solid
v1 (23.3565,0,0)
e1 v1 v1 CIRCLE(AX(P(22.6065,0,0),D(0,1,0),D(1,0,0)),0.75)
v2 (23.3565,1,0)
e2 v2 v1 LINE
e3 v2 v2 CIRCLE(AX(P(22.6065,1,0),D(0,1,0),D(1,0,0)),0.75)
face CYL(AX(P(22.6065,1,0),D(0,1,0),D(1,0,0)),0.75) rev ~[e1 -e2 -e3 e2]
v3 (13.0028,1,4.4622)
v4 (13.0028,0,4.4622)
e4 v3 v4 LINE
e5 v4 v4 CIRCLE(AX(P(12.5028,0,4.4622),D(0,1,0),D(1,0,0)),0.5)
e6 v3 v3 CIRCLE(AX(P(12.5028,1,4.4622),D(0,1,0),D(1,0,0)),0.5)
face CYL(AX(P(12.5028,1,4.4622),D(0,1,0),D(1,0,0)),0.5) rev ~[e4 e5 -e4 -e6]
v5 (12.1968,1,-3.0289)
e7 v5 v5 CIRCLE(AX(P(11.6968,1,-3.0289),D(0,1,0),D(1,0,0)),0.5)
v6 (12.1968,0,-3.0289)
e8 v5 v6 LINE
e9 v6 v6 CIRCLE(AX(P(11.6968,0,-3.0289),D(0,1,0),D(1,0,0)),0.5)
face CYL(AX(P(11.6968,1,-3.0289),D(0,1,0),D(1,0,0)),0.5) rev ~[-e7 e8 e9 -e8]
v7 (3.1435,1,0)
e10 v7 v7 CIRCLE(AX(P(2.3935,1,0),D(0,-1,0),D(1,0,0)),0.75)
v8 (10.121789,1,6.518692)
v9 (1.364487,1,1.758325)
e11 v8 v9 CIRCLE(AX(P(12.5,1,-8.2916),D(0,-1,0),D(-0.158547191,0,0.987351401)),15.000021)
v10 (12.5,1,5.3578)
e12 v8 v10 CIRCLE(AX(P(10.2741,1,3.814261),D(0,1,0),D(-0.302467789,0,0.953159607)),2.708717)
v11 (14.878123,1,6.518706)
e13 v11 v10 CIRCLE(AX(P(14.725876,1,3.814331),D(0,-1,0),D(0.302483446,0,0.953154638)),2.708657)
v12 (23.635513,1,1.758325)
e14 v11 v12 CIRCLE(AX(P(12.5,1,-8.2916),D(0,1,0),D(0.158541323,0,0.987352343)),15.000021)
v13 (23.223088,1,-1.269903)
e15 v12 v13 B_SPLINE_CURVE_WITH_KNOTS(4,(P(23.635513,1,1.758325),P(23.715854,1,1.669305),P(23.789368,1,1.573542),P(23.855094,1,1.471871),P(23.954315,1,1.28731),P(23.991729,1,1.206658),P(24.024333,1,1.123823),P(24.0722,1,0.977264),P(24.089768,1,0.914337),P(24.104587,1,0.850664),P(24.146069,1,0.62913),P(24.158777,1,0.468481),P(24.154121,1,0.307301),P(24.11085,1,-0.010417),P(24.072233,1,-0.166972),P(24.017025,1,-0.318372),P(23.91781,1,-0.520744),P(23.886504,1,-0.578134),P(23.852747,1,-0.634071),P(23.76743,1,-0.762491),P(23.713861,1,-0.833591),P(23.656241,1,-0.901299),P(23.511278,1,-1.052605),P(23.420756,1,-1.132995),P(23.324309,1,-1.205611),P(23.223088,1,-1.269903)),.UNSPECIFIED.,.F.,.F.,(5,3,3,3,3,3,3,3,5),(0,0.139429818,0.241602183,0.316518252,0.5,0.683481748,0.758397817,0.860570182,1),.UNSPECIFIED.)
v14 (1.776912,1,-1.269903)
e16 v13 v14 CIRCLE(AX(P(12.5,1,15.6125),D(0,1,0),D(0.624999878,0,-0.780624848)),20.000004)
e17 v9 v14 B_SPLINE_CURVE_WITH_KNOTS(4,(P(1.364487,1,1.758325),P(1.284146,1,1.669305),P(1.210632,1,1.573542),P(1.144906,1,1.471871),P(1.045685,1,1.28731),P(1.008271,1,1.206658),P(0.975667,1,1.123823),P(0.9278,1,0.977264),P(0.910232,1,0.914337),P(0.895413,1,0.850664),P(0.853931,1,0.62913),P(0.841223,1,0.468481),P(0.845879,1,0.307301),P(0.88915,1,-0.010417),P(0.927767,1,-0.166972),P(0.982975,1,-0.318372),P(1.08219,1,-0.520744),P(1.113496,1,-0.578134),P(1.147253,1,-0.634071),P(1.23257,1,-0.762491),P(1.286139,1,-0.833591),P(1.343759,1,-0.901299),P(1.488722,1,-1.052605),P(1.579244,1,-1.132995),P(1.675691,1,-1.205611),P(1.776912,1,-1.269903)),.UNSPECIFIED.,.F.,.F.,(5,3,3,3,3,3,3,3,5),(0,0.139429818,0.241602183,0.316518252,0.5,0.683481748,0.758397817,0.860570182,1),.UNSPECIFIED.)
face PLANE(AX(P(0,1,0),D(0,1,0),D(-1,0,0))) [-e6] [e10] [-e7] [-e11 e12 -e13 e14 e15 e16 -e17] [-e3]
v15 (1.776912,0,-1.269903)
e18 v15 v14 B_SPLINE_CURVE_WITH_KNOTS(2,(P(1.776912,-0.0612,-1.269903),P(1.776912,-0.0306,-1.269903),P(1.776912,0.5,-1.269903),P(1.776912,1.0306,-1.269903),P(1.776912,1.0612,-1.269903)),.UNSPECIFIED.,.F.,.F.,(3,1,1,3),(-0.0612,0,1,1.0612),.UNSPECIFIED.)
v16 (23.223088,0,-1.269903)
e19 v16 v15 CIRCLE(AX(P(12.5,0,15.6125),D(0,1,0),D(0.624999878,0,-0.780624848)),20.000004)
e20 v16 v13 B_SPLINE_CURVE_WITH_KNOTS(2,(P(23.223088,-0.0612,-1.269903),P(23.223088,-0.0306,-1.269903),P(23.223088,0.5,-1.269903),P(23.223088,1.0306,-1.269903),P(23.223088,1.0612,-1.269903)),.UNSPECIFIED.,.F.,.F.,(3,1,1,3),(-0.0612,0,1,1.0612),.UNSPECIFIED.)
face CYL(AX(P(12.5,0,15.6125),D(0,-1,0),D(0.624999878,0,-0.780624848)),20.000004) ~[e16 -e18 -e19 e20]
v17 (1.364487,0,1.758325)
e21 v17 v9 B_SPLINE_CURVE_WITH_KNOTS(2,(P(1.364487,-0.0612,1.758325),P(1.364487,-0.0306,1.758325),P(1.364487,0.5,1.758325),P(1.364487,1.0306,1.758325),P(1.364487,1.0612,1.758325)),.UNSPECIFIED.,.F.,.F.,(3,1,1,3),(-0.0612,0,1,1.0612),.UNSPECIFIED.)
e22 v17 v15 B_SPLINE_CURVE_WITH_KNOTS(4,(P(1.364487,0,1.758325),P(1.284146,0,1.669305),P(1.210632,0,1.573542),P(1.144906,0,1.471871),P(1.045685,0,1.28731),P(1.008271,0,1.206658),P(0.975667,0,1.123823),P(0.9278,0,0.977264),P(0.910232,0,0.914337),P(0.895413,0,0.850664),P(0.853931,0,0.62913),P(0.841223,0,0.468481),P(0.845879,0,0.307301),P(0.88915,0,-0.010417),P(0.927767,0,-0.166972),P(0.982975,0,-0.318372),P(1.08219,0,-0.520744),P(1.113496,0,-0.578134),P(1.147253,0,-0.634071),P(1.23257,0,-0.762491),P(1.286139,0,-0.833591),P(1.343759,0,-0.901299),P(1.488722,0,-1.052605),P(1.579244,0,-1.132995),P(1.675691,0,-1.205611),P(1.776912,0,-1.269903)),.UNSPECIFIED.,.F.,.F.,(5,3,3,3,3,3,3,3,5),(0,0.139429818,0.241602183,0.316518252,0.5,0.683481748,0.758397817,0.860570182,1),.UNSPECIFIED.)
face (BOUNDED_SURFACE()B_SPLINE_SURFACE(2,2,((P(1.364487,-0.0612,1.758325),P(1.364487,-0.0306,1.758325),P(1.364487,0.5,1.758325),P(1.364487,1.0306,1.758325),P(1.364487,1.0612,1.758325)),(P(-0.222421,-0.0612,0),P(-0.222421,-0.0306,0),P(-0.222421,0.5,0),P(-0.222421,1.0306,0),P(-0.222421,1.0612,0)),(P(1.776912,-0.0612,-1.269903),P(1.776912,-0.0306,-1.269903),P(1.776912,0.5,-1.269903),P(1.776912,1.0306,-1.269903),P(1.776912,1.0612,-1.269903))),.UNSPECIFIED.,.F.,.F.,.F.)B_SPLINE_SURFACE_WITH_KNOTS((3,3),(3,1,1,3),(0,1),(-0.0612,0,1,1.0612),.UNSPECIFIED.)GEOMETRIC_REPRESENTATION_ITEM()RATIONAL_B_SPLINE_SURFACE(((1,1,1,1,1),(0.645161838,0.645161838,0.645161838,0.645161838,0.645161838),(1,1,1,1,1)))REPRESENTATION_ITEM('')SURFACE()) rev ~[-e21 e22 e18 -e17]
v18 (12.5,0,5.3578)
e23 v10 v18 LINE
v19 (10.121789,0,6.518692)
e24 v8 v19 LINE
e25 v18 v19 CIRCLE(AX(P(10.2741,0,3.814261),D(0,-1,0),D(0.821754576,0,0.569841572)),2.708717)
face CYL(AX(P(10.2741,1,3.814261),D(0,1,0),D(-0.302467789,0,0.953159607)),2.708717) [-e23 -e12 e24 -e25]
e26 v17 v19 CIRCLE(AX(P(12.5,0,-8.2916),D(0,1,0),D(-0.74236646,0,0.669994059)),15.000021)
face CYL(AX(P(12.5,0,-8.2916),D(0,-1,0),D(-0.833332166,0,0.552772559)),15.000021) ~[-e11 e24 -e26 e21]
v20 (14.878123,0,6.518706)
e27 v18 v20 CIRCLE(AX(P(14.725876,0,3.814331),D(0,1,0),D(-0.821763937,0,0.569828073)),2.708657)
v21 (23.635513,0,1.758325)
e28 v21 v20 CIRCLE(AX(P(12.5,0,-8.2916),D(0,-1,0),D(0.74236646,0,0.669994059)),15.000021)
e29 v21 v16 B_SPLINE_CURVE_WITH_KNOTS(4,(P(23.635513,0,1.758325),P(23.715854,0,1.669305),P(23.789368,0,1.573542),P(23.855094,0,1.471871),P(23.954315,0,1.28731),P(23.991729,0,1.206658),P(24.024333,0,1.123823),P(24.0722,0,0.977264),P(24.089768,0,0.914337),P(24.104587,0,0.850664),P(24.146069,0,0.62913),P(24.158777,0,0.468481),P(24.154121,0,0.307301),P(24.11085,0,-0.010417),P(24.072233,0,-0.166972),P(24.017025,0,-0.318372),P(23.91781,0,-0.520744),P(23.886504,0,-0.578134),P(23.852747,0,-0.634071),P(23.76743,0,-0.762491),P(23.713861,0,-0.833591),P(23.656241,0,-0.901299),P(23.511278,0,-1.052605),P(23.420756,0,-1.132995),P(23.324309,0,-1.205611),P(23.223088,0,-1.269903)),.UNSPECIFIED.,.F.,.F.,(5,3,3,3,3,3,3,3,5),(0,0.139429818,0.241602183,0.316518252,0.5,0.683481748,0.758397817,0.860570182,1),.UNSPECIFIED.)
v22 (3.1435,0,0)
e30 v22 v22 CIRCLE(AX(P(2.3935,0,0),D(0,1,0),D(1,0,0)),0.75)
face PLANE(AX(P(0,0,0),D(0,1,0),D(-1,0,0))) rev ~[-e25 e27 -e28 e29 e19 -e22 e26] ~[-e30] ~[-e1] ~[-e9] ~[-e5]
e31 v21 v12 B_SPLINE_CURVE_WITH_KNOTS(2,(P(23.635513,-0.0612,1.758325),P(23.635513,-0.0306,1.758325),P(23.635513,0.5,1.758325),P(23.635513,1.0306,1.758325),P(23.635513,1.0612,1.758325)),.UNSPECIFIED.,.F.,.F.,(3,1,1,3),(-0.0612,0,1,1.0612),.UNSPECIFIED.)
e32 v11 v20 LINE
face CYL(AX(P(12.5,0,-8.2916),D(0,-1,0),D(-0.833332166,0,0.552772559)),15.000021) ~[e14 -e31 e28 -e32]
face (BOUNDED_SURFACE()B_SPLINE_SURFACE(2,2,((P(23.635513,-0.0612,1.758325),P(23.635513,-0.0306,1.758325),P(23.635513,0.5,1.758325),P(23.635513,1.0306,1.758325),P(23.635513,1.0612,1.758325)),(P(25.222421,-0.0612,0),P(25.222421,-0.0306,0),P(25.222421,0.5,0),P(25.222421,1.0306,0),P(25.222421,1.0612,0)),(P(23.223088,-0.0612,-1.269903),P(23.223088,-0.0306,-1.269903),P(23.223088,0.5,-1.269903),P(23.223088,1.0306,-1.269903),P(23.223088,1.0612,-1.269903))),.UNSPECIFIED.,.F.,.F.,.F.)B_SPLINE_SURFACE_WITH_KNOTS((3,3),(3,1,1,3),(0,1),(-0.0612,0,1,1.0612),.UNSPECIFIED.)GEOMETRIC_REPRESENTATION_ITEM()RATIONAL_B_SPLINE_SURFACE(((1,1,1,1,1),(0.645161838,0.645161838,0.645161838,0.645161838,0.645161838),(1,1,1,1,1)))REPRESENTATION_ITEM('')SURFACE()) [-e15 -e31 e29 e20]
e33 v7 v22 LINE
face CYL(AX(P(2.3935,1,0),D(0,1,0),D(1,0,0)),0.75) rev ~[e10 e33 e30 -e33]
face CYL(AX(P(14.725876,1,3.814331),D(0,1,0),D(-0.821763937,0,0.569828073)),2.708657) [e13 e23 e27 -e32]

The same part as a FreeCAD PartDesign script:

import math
import FreeCAD as App
import Part
import Sketcher
from FreeCAD import Vector


def edges_at(feature, points):
    """Names of the edges that pass closest to the given points."""
    edges = feature.Shape.Edges
    near = lambda p: min(range(len(edges)), key=lambda i: edges[i].distToShape(Part.Vertex(*p))[0])
    return sorted({f"Edge{near(p) + 1}" for p in points})

doc = App.newDocument("Part")
body = doc.addObject("PartDesign::Body", "Body")

sketch1 = doc.addObject("Sketcher::SketchObject", "Sketch")
body.addObject(sketch1)
sketch1.AttachmentSupport = (doc.XZ_Plane, [""])
sketch1.MapMode = "FlatFace"
sketch1.addGeometry([
    Part.ArcOfCircle(Part.Circle(Vector(12, -8, 0), Vector(0, 0, 1), 15), math.radians(34), math.radians(146)),
    Part.ArcOfCircle(Part.Circle(Vector(12, 16, 0), Vector(0, 0, 1), 20), math.radians(-129), math.radians(-51)),
], False)
sketch1.addConstraint([
    Sketcher.Constraint("Coincident", 0, 1, 1, 2),
    Sketcher.Constraint("Coincident", 1, 1, 0, 2),
    Sketcher.Constraint("Coincident", 1, 1, -1, 1),
    Sketcher.Constraint("PointOnObject", 0, 1, -1),
    Sketcher.Constraint("Radius", 0, 15.0),
    Sketcher.Constraint("Radius", 1, 20.0),
    Sketcher.Constraint("DistanceX", -1, 1, 0, 1, 25.0),
])
pad1 = doc.addObject("PartDesign::Pad", "Pad")
body.addObject(pad1)
pad1.Profile = sketch1
pad1.Length = 1
pad1.Reversed = True
doc.recompute()

fillet = doc.addObject("PartDesign::Fillet", "Fillet")
body.addObject(fillet)
fillet.Base = (pad1, edges_at(pad1, [(25, 0.5, 0), (0, 0.5, 0)]))
fillet.Radius = 2

sketch2 = doc.addObject("Sketcher::SketchObject", "Sketch001")
body.addObject(sketch2)
sketch2.AttachmentSupport = (doc.XZ_Plane, [""])
sketch2.MapMode = "FlatFace"
sketch2.AttachmentOffset = App.Placement(Vector(0, 0, -1), App.Rotation())
sketch2.addGeometry([
    Part.LineSegment(Vector(9.5, 6.4, 0), Vector(10.7, 7.2, 0)),
    Part.LineSegment(Vector(10.7, 7.2, 0), Vector(14.8, 7.3, 0)),
    Part.LineSegment(Vector(14.8, 7.3, 0), Vector(15.5, 6.4, 0)),
    Part.ArcOfCircle(Part.Circle(Vector(14.7, 3.8, 0), Vector(0, 0, 1), 2.7), math.radians(72), math.radians(145)),
    Part.ArcOfCircle(Part.Circle(Vector(10.3, 3.8, 0), Vector(0, 0, 1), 2.7), math.radians(35), math.radians(108)),
], False)
sketch2.addConstraint([
    Sketcher.Constraint("Coincident", 0, 2, 1, 1),
    Sketcher.Constraint("Coincident", 1, 2, 2, 1),
    Sketcher.Constraint("Coincident", 2, 2, 3, 1),
    Sketcher.Constraint("Coincident", 3, 2, 4, 1),
    Sketcher.Constraint("Coincident", 4, 2, 0, 1),
    Sketcher.Constraint("Equal", 3, 4),
    Sketcher.Constraint("Horizontal", 3, 3, 4, 3),
    Sketcher.Constraint("Horizontal", 2, 2, 4, 2),
    Sketcher.Constraint("DistanceX", -1, 1, 3, 2, 12.5),
    Sketcher.Constraint("Radius", 3, 2.7087),
    Sketcher.Constraint("Distance", 0, 1.471),
    Sketcher.Constraint("Distance", 1, 4.129),
    Sketcher.Constraint("Distance", 2, 1.125),
    Sketcher.Constraint("DistanceX", -1, 1, 3, 3, 14.726),
    Sketcher.Constraint("DistanceX", -1, 1, 0, 2, 10.705),
    Sketcher.Constraint("DistanceY", -1, 1, 0, 2, 7.171),
    Sketcher.Constraint("DistanceY", -1, 1, 2, 2, 6.396),
])
pocket1 = doc.addObject("PartDesign::Pocket", "Pocket")
body.addObject(pocket1)
pocket1.Profile = sketch2
pocket1.Length = 1
pocket1.Reversed = True

sketch3 = doc.addObject("Sketcher::SketchObject", "Sketch002")
body.addObject(sketch3)
sketch3.AttachmentSupport = (doc.XZ_Plane, [""])
sketch3.MapMode = "FlatFace"
sketch3.AttachmentOffset = App.Placement(Vector(0, 0, -1), App.Rotation())
sketch3.addGeometry([
    Part.Circle(Vector(2.4, 0, 0), Vector(0, 0, 1), 0.8),
    Part.Circle(Vector(22.6, 0, 0), Vector(0, 0, 1), 0.8),
    Part.Circle(Vector(11.7, -3, 0), Vector(0, 0, 1), 0.5),
], False)
sketch3.addConstraint([
    Sketcher.Constraint("Equal", 0, 1),
    Sketcher.Constraint("PointOnObject", 0, 3, -1),
    Sketcher.Constraint("PointOnObject", 1, 3, -1),
    Sketcher.Constraint("Diameter", 2, 1.0),
    Sketcher.Constraint("Diameter", 0, 1.5),
    Sketcher.Constraint("DistanceY", 2, 3, -1, 1, 3.029),
    Sketcher.Constraint("DistanceX", 0, 3, 1, 3, 20.213),
    Sketcher.Constraint("DistanceX", -1, 1, 0, 3, 2.3935),
    Sketcher.Constraint("DistanceX", -1, 1, 2, 3, 11.6968),
])
pocket2 = doc.addObject("PartDesign::Pocket", "Pocket001")
body.addObject(pocket2)
pocket2.Profile = sketch3
pocket2.Length = 1
pocket2.Reversed = True

sketch4 = doc.addObject("Sketcher::SketchObject", "Sketch003")
body.addObject(sketch4)
sketch4.AttachmentSupport = (doc.XZ_Plane, [""])
sketch4.MapMode = "FlatFace"
sketch4.AttachmentOffset = App.Placement(Vector(0, 0, -1), App.Rotation())
sketch4.addGeometry(Part.Circle(Vector(12.5, 4.5, 0), Vector(0, 0, 1), 0.5), False)
sketch4.addConstraint([
    Sketcher.Constraint("Diameter", 0, 1.0),
    Sketcher.Constraint("DistanceX", -1, 1, 0, 3, 12.5028),
    Sketcher.Constraint("DistanceY", -1, 1, 0, 3, 4.4622),
])
pocket3 = doc.addObject("PartDesign::Pocket", "Pocket002")
body.addObject(pocket3)
pocket3.Profile = sketch4
pocket3.Length = 1
pocket3.Reversed = True

doc.recompute()
